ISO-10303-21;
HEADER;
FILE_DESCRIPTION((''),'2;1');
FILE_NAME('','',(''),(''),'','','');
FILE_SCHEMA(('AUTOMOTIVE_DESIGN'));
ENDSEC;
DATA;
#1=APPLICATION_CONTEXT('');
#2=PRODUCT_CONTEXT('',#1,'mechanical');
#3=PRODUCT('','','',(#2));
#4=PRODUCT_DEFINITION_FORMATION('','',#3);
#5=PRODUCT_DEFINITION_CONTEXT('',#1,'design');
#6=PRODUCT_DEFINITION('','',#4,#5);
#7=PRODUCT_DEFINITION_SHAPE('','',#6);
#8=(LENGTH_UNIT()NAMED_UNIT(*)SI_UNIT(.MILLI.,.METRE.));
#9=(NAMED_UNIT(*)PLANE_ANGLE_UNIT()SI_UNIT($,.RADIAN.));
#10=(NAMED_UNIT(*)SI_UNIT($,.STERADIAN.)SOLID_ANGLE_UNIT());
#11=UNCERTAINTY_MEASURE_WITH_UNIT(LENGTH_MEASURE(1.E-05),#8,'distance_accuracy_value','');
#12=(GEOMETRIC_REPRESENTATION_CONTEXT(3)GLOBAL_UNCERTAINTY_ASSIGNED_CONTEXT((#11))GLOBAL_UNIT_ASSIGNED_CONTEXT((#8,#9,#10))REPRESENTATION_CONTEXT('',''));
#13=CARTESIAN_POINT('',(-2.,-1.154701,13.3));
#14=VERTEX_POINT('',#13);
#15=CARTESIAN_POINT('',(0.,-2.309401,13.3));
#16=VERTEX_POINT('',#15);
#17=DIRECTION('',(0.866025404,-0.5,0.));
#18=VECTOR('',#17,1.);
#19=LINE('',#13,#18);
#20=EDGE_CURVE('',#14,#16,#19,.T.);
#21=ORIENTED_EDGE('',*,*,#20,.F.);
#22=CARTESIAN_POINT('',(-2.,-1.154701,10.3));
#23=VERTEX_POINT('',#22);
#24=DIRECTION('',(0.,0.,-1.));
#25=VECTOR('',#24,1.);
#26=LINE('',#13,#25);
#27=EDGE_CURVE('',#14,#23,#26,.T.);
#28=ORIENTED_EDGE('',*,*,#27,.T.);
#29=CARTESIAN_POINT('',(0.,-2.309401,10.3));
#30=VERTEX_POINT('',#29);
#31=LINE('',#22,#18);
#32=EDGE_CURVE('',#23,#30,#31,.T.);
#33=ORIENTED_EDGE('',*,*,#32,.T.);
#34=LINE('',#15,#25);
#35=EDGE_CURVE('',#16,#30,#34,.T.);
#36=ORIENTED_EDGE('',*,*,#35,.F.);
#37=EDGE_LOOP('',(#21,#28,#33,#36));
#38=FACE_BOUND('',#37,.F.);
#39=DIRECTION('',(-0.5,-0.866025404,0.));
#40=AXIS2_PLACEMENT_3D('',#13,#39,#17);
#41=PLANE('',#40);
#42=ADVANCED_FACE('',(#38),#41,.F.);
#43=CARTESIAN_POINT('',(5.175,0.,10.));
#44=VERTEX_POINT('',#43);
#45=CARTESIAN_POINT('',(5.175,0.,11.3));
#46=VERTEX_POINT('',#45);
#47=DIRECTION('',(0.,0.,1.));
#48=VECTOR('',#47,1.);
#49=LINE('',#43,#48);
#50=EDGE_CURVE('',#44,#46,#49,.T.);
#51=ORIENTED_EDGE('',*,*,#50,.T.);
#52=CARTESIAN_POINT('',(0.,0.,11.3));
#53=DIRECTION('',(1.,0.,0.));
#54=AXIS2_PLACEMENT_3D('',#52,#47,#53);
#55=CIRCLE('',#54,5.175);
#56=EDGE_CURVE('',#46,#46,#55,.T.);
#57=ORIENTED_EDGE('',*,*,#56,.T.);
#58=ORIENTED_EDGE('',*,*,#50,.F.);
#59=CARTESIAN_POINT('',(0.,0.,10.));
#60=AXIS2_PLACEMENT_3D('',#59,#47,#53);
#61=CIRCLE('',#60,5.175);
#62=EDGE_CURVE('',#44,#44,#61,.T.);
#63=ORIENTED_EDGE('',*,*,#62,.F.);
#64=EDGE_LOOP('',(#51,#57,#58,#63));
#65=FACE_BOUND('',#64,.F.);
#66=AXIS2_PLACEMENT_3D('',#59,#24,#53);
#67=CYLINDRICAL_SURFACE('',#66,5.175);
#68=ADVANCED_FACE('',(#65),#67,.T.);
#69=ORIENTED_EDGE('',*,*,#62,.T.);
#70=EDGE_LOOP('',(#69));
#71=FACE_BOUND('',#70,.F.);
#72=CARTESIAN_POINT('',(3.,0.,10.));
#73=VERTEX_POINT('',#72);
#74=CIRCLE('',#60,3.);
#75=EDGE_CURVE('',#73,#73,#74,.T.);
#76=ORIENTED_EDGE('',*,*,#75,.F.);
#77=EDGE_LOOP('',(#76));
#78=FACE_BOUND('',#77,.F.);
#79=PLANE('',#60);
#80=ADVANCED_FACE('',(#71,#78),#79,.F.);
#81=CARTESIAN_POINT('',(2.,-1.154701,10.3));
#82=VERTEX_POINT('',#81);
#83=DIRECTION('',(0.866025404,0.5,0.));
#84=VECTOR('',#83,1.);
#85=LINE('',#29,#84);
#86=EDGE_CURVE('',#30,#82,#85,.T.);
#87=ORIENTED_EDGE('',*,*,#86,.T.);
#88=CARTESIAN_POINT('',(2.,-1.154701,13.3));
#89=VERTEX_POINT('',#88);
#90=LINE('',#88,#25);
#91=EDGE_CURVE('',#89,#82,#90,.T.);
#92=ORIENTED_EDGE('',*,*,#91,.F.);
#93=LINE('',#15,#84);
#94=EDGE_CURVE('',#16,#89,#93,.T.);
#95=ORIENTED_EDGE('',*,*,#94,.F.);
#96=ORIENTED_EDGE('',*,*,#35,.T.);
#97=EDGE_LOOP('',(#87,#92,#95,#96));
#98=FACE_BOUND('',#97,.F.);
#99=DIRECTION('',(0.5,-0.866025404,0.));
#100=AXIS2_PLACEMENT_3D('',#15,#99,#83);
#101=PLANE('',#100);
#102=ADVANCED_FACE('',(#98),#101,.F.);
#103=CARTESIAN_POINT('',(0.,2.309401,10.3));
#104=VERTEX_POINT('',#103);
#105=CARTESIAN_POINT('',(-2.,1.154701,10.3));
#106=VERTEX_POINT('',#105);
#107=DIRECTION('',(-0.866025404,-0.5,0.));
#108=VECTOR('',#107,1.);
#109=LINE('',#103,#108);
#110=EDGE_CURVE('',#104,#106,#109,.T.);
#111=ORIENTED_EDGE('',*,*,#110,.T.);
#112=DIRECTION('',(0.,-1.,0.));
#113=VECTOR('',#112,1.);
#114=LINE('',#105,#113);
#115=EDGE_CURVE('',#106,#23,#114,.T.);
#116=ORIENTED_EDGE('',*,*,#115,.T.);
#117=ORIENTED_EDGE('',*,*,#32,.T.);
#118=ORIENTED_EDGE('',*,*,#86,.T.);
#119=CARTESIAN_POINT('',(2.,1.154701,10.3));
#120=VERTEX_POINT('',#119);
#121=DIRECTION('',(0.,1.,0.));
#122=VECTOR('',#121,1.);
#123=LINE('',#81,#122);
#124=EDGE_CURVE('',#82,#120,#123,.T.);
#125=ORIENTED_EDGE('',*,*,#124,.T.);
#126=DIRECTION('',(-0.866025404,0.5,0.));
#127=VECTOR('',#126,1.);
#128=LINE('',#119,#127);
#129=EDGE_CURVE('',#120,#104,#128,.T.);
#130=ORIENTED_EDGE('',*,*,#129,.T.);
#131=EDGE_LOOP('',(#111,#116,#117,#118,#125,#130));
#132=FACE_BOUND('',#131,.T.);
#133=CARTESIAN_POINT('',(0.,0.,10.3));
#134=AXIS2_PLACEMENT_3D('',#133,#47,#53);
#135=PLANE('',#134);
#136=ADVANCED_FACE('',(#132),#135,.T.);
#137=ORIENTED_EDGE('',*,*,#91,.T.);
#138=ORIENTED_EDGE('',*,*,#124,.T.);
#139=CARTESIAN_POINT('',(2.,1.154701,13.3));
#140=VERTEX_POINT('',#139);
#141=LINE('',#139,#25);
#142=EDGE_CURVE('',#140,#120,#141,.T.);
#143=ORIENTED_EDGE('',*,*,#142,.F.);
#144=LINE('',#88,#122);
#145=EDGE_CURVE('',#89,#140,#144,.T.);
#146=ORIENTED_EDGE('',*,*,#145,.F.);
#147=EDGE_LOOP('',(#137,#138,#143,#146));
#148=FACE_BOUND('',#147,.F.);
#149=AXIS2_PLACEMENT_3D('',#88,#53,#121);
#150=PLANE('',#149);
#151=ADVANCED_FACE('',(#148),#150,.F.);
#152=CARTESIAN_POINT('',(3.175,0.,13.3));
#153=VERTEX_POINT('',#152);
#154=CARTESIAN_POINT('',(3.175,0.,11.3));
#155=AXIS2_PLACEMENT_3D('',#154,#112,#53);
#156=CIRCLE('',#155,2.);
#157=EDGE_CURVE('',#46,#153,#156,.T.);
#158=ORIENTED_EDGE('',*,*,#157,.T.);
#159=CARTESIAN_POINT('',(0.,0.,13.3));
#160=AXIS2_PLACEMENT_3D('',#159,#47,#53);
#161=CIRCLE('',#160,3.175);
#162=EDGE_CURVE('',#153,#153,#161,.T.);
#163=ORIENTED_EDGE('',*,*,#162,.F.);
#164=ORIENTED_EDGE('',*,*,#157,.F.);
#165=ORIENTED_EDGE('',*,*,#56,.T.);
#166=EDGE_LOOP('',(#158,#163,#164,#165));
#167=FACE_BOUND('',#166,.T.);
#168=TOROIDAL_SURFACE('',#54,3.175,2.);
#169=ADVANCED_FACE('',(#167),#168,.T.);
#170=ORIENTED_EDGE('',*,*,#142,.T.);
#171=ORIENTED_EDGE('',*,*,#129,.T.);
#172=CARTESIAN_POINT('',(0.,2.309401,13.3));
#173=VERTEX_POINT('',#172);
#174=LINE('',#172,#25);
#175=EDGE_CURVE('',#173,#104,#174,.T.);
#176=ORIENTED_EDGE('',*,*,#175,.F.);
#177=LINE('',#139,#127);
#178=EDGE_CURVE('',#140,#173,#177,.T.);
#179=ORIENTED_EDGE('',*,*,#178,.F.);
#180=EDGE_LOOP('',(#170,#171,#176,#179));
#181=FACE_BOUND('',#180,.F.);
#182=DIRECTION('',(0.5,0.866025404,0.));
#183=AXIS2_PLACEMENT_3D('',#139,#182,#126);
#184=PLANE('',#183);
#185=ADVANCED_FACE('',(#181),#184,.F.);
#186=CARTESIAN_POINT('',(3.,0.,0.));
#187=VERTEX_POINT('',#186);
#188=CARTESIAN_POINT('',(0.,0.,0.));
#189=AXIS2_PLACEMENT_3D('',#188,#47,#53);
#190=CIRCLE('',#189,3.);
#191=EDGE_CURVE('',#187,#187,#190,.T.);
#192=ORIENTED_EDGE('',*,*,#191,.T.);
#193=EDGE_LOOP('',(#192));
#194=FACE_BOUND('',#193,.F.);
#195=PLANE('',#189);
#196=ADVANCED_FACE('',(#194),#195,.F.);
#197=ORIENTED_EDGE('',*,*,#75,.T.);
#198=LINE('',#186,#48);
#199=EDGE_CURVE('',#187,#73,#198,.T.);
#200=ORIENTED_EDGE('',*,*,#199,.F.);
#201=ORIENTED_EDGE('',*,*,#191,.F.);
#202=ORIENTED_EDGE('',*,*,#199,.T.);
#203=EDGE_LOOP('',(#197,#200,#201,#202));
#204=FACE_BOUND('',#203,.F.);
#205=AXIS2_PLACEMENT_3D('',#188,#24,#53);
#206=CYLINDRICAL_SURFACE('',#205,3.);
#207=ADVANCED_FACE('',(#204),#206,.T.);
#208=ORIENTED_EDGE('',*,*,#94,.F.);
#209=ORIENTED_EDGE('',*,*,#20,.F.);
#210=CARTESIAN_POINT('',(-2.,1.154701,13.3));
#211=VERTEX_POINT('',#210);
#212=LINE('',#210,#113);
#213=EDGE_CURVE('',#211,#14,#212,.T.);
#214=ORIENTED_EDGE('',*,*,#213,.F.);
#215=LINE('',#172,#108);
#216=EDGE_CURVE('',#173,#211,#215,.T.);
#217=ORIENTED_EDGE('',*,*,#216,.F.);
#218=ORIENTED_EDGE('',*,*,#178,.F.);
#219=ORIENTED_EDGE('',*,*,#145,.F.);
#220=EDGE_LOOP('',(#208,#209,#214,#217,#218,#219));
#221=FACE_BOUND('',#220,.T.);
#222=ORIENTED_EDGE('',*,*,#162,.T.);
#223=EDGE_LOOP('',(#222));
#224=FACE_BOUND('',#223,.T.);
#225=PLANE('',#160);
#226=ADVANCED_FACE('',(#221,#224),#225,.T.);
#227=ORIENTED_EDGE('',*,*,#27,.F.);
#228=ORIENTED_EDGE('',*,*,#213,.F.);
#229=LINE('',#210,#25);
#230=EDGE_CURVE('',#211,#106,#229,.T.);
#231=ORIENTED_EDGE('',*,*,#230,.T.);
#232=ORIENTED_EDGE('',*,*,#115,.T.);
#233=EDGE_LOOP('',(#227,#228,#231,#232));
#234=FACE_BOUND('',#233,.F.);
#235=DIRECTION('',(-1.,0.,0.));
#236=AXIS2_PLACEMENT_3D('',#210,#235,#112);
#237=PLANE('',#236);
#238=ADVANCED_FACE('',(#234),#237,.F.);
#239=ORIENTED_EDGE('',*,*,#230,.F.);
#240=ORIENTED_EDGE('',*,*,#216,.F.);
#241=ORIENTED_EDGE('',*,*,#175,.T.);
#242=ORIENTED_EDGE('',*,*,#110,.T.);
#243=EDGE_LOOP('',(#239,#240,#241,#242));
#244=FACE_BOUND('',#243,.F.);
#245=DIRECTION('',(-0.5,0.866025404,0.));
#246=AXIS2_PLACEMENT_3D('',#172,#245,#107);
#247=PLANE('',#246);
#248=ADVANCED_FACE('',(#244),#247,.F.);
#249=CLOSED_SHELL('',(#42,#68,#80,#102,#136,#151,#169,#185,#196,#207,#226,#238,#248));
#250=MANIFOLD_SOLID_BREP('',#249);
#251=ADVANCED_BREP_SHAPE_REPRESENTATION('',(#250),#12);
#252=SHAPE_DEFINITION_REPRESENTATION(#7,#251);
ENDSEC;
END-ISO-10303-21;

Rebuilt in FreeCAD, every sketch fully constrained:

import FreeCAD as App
import Part
import Sketcher
from FreeCAD import Vector
Q = App.Units.Quantity


def edges_at(feature, points):
    """Names of the edges that pass closest to the given points."""
    edges = feature.Shape.Edges
    near = lambda p: min(range(len(edges)), key=lambda i: edges[i].distToShape(Part.Vertex(*p))[0])
    return sorted({f"Edge{near(p) + 1}" for p in points})


def add_polygon(sketch, points):
    """Adds a closed chain of lines whose ends are joined by coincident constraints."""
    first, n = sketch.GeometryCount, len(points)
    for a, b in zip(points, points[1:] + points[:1]):
        sketch.addGeometry(Part.LineSegment(App.Vector(*a, 0), App.Vector(*b, 0)), False)
    for i in range(n):
        sketch.addConstraint(Sketcher.Constraint("Coincident", first + i, 2, first + (i + 1) % n, 1))

doc = App.newDocument("Part")
body = doc.addObject("PartDesign::Body", "Body")

sketch1 = body.newObject("Sketcher::SketchObject", "Sketch")
sketch1.AttachmentSupport = (doc.getObject("XY_Plane"), [""])
sketch1.MapMode = "FlatFace"
sketch1.addGeometry(Part.Circle(Vector(0, 0, 0), Vector(0, 0, 1), 3), False)
sketch1.addConstraint(Sketcher.Constraint("Coincident", 0, 3, -1, 1))
sketch1.addConstraint(Sketcher.Constraint("Diameter", 0, 6.0))
pad1 = body.newObject("PartDesign::Pad", "Pad")
pad1.Profile = sketch1
pad1.Length = 10

sketch2 = body.newObject("Sketcher::SketchObject", "Sketch001")
sketch2.AttachmentSupport = (doc.getObject("XY_Plane"), [""])
sketch2.MapMode = "FlatFace"
sketch2.AttachmentOffset = App.Placement(Vector(0, 0, 10), App.Rotation())
sketch2.addGeometry(Part.Circle(Vector(0, 0, 0), Vector(0, 0, 1), 5), False)
sketch2.addConstraint(Sketcher.Constraint("Coincident", 0, 3, -1, 1))
sketch2.addConstraint(Sketcher.Constraint("Diameter", 0, 10.35))
pad2 = body.newObject("PartDesign::Pad", "Pad001")
pad2.Profile = sketch2
pad2.Length = 3.3
doc.recompute()

fillet = body.newObject("PartDesign::Fillet", "Fillet")
fillet.Base = (pad2, edges_at(pad2, [(-5.175, 0, 13.3)]))
fillet.Radius = 2

sketch3 = body.newObject("Sketcher::SketchObject", "Sketch002")
sketch3.AttachmentSupport = (doc.getObject("XY_Plane"), [""])
sketch3.MapMode = "FlatFace"
sketch3.AttachmentOffset = App.Placement(Vector(0, 0, 13.3), App.Rotation())
add_polygon(sketch3, [(2, -1.2), (2, 1.2), (0, 2.3), (-2, 1.2), (-2, -1.2), (0, -2.3)])
sketch3.addConstraint(Sketcher.Constraint("Vertical", 0))
sketch3.addConstraint(Sketcher.Constraint("Vertical", 3))
sketch3.addConstraint(Sketcher.Constraint("Symmetric", 0, 2, 3, 2, -1, 1))
sketch3.addConstraint(Sketcher.Constraint("Symmetric", 1, 2, 4, 2, -1, 1))
sketch3.addConstraint(Sketcher.Constraint("PointOnObject", 1, 2, -2))
sketch3.addConstraint(Sketcher.Constraint("Parallel", 2, 5))
sketch3.addConstraint(Sketcher.Constraint("Horizontal", 0, 2, 2, 2))
sketch3.addConstraint(Sketcher.Constraint("Angle", 1, Q("150 deg")))
sketch3.addConstraint(Sketcher.Constraint("DistanceX", -1, 1, 0, 2, 2.0))
sketch3.addConstraint(Sketcher.Constraint("DistanceY", 0, 1, 0, 2, 2.309401))
pocket1 = body.newObject("PartDesign::Pocket", "Pocket")
pocket1.Profile = sketch3
pocket1.Length = 3

doc.recompute()
